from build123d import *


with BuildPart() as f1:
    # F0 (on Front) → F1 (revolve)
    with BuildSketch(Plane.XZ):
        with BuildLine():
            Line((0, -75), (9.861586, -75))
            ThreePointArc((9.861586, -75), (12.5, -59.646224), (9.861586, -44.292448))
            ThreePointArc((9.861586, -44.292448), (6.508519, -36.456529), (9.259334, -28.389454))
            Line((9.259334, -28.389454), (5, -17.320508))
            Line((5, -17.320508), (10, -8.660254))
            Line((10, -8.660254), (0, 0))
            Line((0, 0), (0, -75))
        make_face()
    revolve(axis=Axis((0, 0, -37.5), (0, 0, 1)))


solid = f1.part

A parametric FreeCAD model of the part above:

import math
import FreeCAD as App
import Part
import Sketcher
from FreeCAD import Vector
Q = App.Units.Quantity

doc = App.newDocument("Part")
body = doc.addObject("PartDesign::Body", "Body")

sketch1 = doc.addObject("Sketcher::SketchObject", "Sketch")
body.addObject(sketch1)
sketch1.AttachmentSupport = (doc.XZ_Plane, [""])
sketch1.MapMode = "FlatFace"
sketch1.addGeometry(Part.LineSegment(Vector(0, -75, 0), Vector(10, -75, 0)), False)
sketch1.addGeometry(Part.ArcOfCircle(Part.Circle(Vector(-33, -60, 0), Vector(0, 0, 1), 46), math.radians(-20), math.radians(20)), False)
sketch1.addGeometry(Part.ArcOfCircle(Part.Circle(Vector(18, -36, 0), Vector(0, 0, 1), 12), math.radians(140), math.radians(224)), False)
sketch1.addGeometry(Part.LineSegment(Vector(9, -28, 0), Vector(5, -17, 0)), False)
sketch1.addGeometry(Part.LineSegment(Vector(5, -17, 0), Vector(10, -9, 0)), False)
sketch1.addGeometry(Part.LineSegment(Vector(10, -9, 0), Vector(0, 0, 0)), False)
sketch1.addGeometry(Part.LineSegment(Vector(0, 0, 0), Vector(0, -75, 0)), False)
sketch1.addConstraint(Sketcher.Constraint("Coincident", 0, 2, 1, 1))
sketch1.addConstraint(Sketcher.Constraint("Coincident", 1, 2, 2, 2))
sketch1.addConstraint(Sketcher.Constraint("Coincident", 2, 1, 3, 1))
sketch1.addConstraint(Sketcher.Constraint("Coincident", 3, 2, 4, 1))
sketch1.addConstraint(Sketcher.Constraint("Coincident", 4, 2, 5, 1))
sketch1.addConstraint(Sketcher.Constraint("Coincident", 5, 2, 6, 1))
sketch1.addConstraint(Sketcher.Constraint("Coincident", 6, 2, 0, 1))
sketch1.addConstraint(Sketcher.Constraint("Horizontal", 0))
sketch1.addConstraint(Sketcher.Constraint("Vertical", 6))
sketch1.addConstraint(Sketcher.Constraint("Coincident", 5, 2, -1, 1))
sketch1.addConstraint(Sketcher.Constraint("Vertical", 0, 2, 1, 2))
sketch1.addConstraint(Sketcher.Constraint("DistanceY", 6, 2, 6, 1, Q("75 mm")))
sketch1.addConstraint(Sketcher.Constraint("Angle", 4, Q("60 deg")))
sketch1.addConstraint(Sketcher.Constraint("Distance", 4, Q("10 mm")))
sketch1.addConstraint(Sketcher.Constraint("DistanceX", -1, 1, 3, 2, Q("5 mm")))
sketch1.addConstraint(Sketcher.Constraint("Radius", 1, Q("45.993477 mm")))
sketch1.addConstraint(Sketcher.Constraint("Radius", 2, Q("11.892865 mm")))
sketch1.addConstraint(Sketcher.Constraint("DistanceY", 2, 1, 4, 2, Q("19.7292 mm")))
sketch1.addConstraint(Sketcher.Constraint("DistanceX", 0, 1, 0, 2, Q("9.861586 mm")))
sketch1.addConstraint(Sketcher.Constraint("DistanceY", 3, 2, -1, 1, Q("17.320508 mm")))
sketch1.addConstraint(Sketcher.Constraint("DistanceY", 1, 3, 2, 3, Q("23.639759 mm")))
sketch1.addConstraint(Sketcher.Constraint("DistanceX", 0, 2, 2, 3, Q("8.531279 mm")))
revolution = doc.addObject("PartDesign::Revolution", "Revolution")
body.addObject(revolution)
revolution.Profile = sketch1
revolution.ReferenceAxis = (sketch1, ["V_Axis"])
revolution.Angle = 360

doc.recompute()
